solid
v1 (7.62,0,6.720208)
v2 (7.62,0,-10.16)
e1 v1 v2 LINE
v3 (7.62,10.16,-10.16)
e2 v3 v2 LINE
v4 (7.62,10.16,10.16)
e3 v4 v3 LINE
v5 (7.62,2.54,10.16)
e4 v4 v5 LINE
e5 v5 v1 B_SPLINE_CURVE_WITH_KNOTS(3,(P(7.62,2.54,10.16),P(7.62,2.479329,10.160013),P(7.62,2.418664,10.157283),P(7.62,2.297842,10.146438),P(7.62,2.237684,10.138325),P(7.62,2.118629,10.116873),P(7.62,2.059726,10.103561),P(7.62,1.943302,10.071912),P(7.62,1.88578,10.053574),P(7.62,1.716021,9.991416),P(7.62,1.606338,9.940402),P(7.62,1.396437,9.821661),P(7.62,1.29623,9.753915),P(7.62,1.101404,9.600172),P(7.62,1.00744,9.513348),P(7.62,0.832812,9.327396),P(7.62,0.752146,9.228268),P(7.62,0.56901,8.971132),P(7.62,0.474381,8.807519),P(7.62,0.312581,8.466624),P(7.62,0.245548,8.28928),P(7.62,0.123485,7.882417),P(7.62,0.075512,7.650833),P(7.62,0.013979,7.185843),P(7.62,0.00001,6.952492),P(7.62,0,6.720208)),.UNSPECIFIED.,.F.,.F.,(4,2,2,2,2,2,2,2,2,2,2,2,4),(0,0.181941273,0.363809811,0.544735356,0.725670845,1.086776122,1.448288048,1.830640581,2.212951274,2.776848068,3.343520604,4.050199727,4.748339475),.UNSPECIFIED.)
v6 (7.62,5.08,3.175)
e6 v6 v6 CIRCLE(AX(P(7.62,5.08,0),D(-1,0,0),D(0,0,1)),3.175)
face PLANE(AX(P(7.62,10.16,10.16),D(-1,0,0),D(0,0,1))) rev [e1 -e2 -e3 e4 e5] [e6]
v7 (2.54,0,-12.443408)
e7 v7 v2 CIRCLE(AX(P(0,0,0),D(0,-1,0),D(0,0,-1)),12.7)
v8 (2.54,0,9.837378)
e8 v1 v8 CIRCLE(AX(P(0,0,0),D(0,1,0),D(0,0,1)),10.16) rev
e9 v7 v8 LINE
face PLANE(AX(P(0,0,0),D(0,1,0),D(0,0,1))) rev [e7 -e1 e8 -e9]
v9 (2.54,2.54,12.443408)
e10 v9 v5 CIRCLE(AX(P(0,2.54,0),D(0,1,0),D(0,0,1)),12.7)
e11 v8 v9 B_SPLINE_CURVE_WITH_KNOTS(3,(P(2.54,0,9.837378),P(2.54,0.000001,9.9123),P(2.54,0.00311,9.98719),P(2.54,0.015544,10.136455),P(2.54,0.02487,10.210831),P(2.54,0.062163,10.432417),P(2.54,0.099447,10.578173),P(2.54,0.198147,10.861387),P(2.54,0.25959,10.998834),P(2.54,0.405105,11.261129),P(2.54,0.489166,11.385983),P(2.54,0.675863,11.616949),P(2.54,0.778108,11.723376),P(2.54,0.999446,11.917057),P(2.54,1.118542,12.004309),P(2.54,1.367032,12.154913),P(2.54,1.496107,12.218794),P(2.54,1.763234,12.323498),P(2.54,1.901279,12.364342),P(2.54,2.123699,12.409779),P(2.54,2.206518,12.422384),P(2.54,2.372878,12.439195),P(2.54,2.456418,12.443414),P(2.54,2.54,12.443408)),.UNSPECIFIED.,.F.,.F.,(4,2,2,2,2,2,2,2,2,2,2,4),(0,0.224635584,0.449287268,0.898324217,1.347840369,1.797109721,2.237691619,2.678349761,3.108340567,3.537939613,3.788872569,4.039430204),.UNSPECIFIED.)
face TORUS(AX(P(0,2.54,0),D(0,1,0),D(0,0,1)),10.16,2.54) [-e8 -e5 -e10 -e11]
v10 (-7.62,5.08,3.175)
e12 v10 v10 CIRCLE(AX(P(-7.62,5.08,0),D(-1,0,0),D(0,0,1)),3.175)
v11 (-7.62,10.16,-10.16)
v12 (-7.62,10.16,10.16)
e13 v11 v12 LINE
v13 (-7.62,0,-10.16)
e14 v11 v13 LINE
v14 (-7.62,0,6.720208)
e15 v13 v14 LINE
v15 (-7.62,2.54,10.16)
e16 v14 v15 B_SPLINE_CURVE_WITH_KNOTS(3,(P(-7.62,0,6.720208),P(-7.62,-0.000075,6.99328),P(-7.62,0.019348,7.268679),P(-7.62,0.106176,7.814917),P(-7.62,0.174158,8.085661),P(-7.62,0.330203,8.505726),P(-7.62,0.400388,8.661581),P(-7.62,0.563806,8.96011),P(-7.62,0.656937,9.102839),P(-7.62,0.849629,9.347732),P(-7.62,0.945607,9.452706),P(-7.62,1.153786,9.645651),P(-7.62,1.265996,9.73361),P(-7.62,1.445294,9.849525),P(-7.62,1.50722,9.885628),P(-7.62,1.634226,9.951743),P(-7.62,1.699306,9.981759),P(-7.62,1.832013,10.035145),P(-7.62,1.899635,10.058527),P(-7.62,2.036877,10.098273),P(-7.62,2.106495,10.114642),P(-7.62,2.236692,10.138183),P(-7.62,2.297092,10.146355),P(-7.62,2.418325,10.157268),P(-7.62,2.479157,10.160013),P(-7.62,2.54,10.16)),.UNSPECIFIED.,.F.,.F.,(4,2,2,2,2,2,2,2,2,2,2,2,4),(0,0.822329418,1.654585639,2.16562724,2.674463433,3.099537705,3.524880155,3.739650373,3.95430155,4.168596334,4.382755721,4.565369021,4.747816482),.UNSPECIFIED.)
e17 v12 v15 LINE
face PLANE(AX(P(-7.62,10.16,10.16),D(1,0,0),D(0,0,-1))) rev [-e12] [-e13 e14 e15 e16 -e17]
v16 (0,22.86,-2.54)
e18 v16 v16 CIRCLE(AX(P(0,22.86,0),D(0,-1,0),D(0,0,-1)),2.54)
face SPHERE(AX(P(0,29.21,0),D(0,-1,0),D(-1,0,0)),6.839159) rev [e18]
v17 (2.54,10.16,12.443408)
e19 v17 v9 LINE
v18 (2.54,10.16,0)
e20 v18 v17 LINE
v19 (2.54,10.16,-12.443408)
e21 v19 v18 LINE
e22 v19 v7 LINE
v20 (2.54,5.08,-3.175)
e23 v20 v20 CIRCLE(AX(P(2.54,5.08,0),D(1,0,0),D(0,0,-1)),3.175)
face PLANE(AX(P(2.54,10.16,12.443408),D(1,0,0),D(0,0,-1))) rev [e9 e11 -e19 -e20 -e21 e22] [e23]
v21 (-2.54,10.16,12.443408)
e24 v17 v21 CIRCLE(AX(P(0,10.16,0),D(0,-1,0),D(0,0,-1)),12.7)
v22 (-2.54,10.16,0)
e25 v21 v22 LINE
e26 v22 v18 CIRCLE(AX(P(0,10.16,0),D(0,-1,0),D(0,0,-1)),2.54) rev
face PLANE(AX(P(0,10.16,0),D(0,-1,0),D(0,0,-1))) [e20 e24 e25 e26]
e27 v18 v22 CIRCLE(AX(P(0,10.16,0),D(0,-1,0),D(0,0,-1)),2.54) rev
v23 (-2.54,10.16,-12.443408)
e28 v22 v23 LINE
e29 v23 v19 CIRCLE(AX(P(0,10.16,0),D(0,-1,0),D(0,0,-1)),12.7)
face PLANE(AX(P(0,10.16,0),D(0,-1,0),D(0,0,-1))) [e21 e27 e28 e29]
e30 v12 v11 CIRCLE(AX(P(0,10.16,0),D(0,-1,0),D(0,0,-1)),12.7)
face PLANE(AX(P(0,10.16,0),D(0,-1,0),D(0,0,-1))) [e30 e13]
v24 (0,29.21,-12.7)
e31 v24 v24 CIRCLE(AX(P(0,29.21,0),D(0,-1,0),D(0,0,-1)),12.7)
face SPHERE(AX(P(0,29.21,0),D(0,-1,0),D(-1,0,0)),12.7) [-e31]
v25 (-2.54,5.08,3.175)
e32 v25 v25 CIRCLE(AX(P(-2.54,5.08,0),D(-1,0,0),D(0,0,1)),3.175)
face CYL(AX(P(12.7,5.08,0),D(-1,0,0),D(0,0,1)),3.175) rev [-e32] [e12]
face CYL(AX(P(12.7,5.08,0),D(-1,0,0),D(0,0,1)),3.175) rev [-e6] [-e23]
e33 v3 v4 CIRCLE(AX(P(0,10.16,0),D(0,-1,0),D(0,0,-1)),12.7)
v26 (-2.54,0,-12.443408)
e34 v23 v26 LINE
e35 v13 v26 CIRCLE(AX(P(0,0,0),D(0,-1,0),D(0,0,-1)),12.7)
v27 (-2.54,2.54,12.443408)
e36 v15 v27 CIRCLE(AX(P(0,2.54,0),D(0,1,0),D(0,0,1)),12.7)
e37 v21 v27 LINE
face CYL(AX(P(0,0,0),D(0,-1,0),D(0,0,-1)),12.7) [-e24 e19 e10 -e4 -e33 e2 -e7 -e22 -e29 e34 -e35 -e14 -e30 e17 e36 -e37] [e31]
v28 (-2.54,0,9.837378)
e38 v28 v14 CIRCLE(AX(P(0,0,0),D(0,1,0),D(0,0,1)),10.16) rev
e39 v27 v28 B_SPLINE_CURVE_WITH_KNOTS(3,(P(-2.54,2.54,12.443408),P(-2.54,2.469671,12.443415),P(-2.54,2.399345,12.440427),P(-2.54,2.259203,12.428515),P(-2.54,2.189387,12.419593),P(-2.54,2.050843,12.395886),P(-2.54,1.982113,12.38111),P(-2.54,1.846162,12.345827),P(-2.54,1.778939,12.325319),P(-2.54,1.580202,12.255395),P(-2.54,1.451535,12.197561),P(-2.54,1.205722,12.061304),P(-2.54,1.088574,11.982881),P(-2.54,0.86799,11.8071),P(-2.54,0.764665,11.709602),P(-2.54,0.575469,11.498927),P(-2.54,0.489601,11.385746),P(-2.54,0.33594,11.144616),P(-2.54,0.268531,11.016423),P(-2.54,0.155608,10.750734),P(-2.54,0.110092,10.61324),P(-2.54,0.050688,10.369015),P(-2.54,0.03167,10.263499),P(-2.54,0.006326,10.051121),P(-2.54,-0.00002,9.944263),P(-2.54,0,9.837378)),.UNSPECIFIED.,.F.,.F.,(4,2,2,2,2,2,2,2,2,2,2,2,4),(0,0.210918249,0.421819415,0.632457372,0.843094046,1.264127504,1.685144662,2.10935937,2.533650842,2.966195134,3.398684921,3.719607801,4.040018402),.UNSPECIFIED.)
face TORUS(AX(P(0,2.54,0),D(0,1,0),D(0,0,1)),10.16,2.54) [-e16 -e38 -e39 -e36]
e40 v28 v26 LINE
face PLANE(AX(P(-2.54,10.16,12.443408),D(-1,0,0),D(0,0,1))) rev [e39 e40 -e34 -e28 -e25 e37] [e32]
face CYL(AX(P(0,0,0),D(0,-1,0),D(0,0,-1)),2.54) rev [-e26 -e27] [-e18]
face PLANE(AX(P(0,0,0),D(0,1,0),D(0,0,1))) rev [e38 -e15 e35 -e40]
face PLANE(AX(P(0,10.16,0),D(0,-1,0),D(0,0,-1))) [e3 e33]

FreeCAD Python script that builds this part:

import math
import FreeCAD as App
import Part
import Sketcher
Q = App.Units.Quantity


def edges_at(feature, points):
    """Names of the edges that pass closest to the given points."""
    edges = feature.Shape.Edges
    near = lambda p: min(range(len(edges)), key=lambda i: edges[i].distToShape(Part.Vertex(*p))[0])
    return sorted({f"Edge{near(p) + 1}" for p in points})

doc = App.newDocument("Part")
params = doc.addObject("Spreadsheet::Sheet", "Params")
for row, (alias, value) in enumerate([
    ("sketch1_radius", "0.5 in"),
    ("sketch1_width", "0.1 in"),
    ("sketch1_height", "1.15 in"),
    ("revolution_angle", "360 deg"),
    ("sketch2_radius", "0.5 in"),
    ("sketch2_height", "0.8 in"),
    ("pocket1_length", "0.4 in"),
    ("sketch3_diameter", "0.25 in"),
    ("fillet_radius", "0.1 in"),
], start=1):
    params.set(f"A{row}", alias)
    params.set(f"B{row}", "=" + value)
    params.setAlias(f"B{row}", alias)

body = doc.addObject("PartDesign::Body", "Body")

sketch1 = doc.addObject("Sketcher::SketchObject", "Sketch")
body.addObject(sketch1)
sketch1.AttachmentSupport = (doc.XY_Plane, [""])
sketch1.MapMode = "FlatFace"
sketch1.addGeometry(Part.LineSegment(App.Vector(0, 0, 0), App.Vector(0, 5.6, 0)), False)
sketch1.addGeometry(Part.LineSegment(App.Vector(0, 5.6, 0), App.Vector(-2.5, 5.6, 0)), False)
sketch1.addGeometry(Part.LineSegment(App.Vector(-2.5, 5.6, 0), App.Vector(-2.5, 22.9, 0)), False)
sketch1.addGeometry(Part.ArcOfCircle(Part.Circle(App.Vector(0, 29.2, 0), App.Vector(0, 0, 1), 6.8), math.radians(90), math.radians(248)), False)
sketch1.addGeometry(Part.LineSegment(App.Vector(0, 36, 0), App.Vector(0, 41.9, 0)), False)
sketch1.addGeometry(Part.ArcOfCircle(Part.Circle(App.Vector(0, 29.2, 0), App.Vector(0, 0, 1), 12.7), math.radians(90), math.radians(180)), False)
sketch1.addGeometry(Part.LineSegment(App.Vector(-12.7, 29.2, 0), App.Vector(-12.7, 0, 0)), False)
sketch1.addGeometry(Part.LineSegment(App.Vector(-12.7, 0, 0), App.Vector(0, 0, 0)), False)
sketch1.addConstraint(Sketcher.Constraint("Coincident", 0, 2, 1, 1))
sketch1.addConstraint(Sketcher.Constraint("Coincident", 1, 2, 2, 1))
sketch1.addConstraint(Sketcher.Constraint("Coincident", 2, 2, 3, 2))
sketch1.addConstraint(Sketcher.Constraint("Coincident", 3, 1, 4, 1))
sketch1.addConstraint(Sketcher.Constraint("Coincident", 4, 2, 5, 1))
sketch1.addConstraint(Sketcher.Constraint("Tangent", 5, 2, 6, 1))
sketch1.addConstraint(Sketcher.Constraint("Coincident", 6, 2, 7, 1))
sketch1.addConstraint(Sketcher.Constraint("Coincident", 7, 2, 0, 1))
sketch1.addConstraint(Sketcher.Constraint("Vertical", 0))
sketch1.addConstraint(Sketcher.Constraint("Horizontal", 1))
sketch1.addConstraint(Sketcher.Constraint("Vertical", 2))
sketch1.addConstraint(Sketcher.Constraint("Vertical", 4))
sketch1.addConstraint(Sketcher.Constraint("Vertical", 6))
sketch1.addConstraint(Sketcher.Constraint("Horizontal", 7))
sketch1.addConstraint(Sketcher.Constraint("Coincident", 7, 2, -1, 1))
sketch1.addConstraint(Sketcher.Constraint("Coincident", 5, 3, 3, 3))
sketch1.addConstraint(Sketcher.Constraint("PointOnObject", 3, 3, -2))
sketch1.addConstraint(Sketcher.Constraint("PointOnObject", 3, 1, -2))
sketch1.addConstraint(Sketcher.Constraint("Radius", 5, Q("0.5 in")))
sketch1.addConstraint(Sketcher.Constraint("DistanceX", 1, 2, 1, 1, Q("0.1 in")))
sketch1.addConstraint(Sketcher.Constraint("DistanceY", 6, 2, 6, 1, Q("1.15 in")))
sketch1.addConstraint(Sketcher.Constraint("DistanceY", -1, 1, 2, 2, Q("0.9 in")))
sketch1.addConstraint(Sketcher.Constraint("DistanceY", 0, 1, 0, 2, 5.602635))
sketch1.setExpression("Constraints[18]", "Params.sketch1_radius")
sketch1.setExpression("Constraints[19]", "Params.sketch1_width")
sketch1.setExpression("Constraints[20]", "Params.sketch1_height")
revolution = doc.addObject("PartDesign::Revolution", "Revolution")
body.addObject(revolution)
revolution.Profile = sketch1
revolution.ReferenceAxis = (sketch1, ["V_Axis"])
revolution.setExpression("Angle", "Params.revolution_angle")

sketch2 = doc.addObject("Sketcher::SketchObject", "Sketch001")
body.addObject(sketch2)
sketch2.AttachmentSupport = (doc.XZ_Plane, [""])
sketch2.MapMode = "FlatFace"
sketch2.addGeometry(Part.LineSegment(App.Vector(-3, 12, 0), App.Vector(-3, -12, 0)), False)
sketch2.addGeometry(Part.ArcOfCircle(Part.Circle(App.Vector(0, 0, 0), App.Vector(0, 0, 1), 13), math.radians(-102), math.radians(-78)), False)
sketch2.addGeometry(Part.LineSegment(App.Vector(3, -12, 0), App.Vector(3, 12, 0)), False)
sketch2.addGeometry(Part.ArcOfCircle(Part.Circle(App.Vector(0, 0, 0), App.Vector(0, 0, 1), 13), math.radians(78), math.radians(102)), False)
sketch2.addGeometry(Part.LineSegment(App.Vector(-8, -10, 0), App.Vector(-8, 10, 0)), False)
sketch2.addGeometry(Part.ArcOfCircle(Part.Circle(App.Vector(0, 0, 0), App.Vector(0, 0, 1), 13), math.radians(127), math.radians(233)), False)
sketch2.addGeometry(Part.LineSegment(App.Vector(8, 10, 0), App.Vector(8, -10, 0)), False)
sketch2.addGeometry(Part.ArcOfCircle(Part.Circle(App.Vector(0, 0, 0), App.Vector(0, 0, 1), 13), math.radians(-53), math.radians(53)), False)
sketch2.addConstraint(Sketcher.Constraint("Coincident", 0, 2, 1, 1))
sketch2.addConstraint(Sketcher.Constraint("Coincident", 1, 2, 2, 1))
sketch2.addConstraint(Sketcher.Constraint("Coincident", 2, 2, 3, 1))
sketch2.addConstraint(Sketcher.Constraint("Coincident", 3, 2, 0, 1))
sketch2.addConstraint(Sketcher.Constraint("Coincident", 4, 1, 5, 2))
sketch2.addConstraint(Sketcher.Constraint("Coincident", 5, 1, 4, 2))
sketch2.addConstraint(Sketcher.Constraint("Coincident", 6, 1, 7, 2))
sketch2.addConstraint(Sketcher.Constraint("Coincident", 7, 1, 6, 2))
sketch2.addConstraint(Sketcher.Constraint("Vertical", 0))
sketch2.addConstraint(Sketcher.Constraint("Vertical", 2))
sketch2.addConstraint(Sketcher.Constraint("Vertical", 4))
sketch2.addConstraint(Sketcher.Constraint("Vertical", 6))
sketch2.addConstraint(Sketcher.Constraint("Coincident", 1, 3, -1, 1))
sketch2.addConstraint(Sketcher.Constraint("Coincident", 3, 3, -1, 1))
sketch2.addConstraint(Sketcher.Constraint("Coincident", 5, 3, -1, 1))
sketch2.addConstraint(Sketcher.Constraint("Coincident", 7, 3, -1, 1))
sketch2.addConstraint(Sketcher.Constraint("Equal", 1, 3))
sketch2.addConstraint(Sketcher.Constraint("Equal", 3, 5))
sketch2.addConstraint(Sketcher.Constraint("Equal", 5, 7))
sketch2.addConstraint(Sketcher.Constraint("Horizontal", 0, 2, 1, 2))
sketch2.addConstraint(Sketcher.Constraint("Horizontal", 5, 1, 6, 1))
sketch2.addConstraint(Sketcher.Constraint("Radius", 1, Q("0.5 in")))
sketch2.addConstraint(Sketcher.Constraint("DistanceY", 4, 1, 4, 2, Q("0.8 in")))
sketch2.addConstraint(Sketcher.Constraint("DistanceX", 0, 2, -1, 1, Q("0.1 in")))
sketch2.setExpression("Constraints[21]", "Params.sketch2_radius")
sketch2.setExpression("Constraints[22]", "Params.sketch2_height")
pocket1 = doc.addObject("PartDesign::Pocket", "Pocket")
body.addObject(pocket1)
pocket1.Profile = sketch2
pocket1.setExpression("Length", "Params.pocket1_length")

sketch3 = doc.addObject("Sketcher::SketchObject", "Sketch002")
body.addObject(sketch3)
sketch3.AttachmentSupport = (doc.YZ_Plane, [""])
sketch3.MapMode = "FlatFace"
sketch3.AttachmentOffset = App.Placement(App.Vector(0, 0, -0.3 * 25.4), App.Rotation())
sketch3.addGeometry(Part.Circle(App.Vector(5.1, 0, 0), App.Vector(0, 0, 1), 3.2), False)
sketch3.addConstraint(Sketcher.Constraint("PointOnObject", 0, 3, -1))
sketch3.addConstraint(Sketcher.Constraint("Diameter", 0, Q("0.25 in")))
sketch3.addConstraint(Sketcher.Constraint("DistanceX", -1, 1, 0, 3, Q("0.2 in")))
sketch3.setExpression("Constraints[1]", "Params.sketch3_diameter")
pocket2 = doc.addObject("PartDesign::Pocket", "Pocket001")
body.addObject(pocket2)
pocket2.Profile = sketch3
pocket2.Type = "ThroughAll"
pocket2.Reversed = True
doc.recompute()

fillet = doc.addObject("PartDesign::Fillet", "Fillet")
body.addObject(fillet)
fillet.Base = (pocket2, edges_at(pocket2, [(5.207, 0, 11.584), (-5.207, 0, 11.584)]))
fillet.setExpression("Radius", "Params.fillet_radius")

doc.recompute()
